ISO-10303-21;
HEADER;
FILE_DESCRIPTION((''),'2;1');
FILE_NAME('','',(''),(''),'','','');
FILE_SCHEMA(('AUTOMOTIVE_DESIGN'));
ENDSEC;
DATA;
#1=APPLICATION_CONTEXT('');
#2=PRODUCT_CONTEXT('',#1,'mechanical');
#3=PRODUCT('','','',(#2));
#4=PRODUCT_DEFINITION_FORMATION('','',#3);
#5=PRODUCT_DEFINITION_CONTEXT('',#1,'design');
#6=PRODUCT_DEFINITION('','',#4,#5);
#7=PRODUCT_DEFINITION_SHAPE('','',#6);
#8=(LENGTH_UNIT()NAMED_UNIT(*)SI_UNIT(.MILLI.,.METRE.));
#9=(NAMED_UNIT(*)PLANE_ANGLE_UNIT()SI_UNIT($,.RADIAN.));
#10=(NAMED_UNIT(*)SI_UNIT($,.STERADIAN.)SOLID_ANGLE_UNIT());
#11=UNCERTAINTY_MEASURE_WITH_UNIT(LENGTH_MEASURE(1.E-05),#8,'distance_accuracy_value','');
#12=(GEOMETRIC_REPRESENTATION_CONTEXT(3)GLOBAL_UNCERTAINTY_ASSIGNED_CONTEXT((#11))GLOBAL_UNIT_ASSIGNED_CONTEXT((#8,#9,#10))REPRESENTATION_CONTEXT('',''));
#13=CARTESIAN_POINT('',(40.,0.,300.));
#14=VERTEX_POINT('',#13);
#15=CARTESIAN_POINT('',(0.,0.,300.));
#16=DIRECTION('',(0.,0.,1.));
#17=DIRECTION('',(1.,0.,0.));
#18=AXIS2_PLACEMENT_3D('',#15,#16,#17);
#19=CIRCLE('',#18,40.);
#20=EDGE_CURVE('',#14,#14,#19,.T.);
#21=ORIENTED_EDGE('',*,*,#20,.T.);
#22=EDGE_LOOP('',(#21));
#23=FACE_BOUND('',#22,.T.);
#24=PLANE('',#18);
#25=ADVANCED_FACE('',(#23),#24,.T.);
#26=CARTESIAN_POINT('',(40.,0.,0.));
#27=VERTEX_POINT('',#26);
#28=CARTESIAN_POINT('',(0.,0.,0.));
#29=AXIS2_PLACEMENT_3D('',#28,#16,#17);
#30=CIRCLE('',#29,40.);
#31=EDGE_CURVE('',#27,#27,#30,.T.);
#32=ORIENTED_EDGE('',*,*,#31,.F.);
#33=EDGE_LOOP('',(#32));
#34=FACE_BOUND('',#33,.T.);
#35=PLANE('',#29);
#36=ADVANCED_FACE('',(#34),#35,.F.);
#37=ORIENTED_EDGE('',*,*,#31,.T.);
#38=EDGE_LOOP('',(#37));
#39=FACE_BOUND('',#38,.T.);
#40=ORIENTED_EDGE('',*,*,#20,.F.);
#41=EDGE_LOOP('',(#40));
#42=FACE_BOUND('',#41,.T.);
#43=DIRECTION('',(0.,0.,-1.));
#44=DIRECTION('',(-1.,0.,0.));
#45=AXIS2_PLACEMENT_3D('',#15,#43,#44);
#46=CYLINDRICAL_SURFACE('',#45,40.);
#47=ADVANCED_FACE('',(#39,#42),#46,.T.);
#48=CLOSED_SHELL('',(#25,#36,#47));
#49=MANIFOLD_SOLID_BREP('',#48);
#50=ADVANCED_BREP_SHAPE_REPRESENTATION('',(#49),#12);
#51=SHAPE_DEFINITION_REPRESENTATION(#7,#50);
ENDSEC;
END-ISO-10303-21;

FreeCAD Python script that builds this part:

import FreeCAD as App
import Part
import Sketcher
Q = App.Units.Quantity

doc = App.newDocument("Part")
body = doc.addObject("PartDesign::Body", "Body")

sketch1 = doc.addObject("Sketcher::SketchObject", "Sketch")
body.addObject(sketch1)
sketch1.AttachmentSupport = (doc.XY_Plane, [""])
sketch1.MapMode = "FlatFace"
sketch1.addGeometry(Part.Circle(App.Vector(0, 0, 0), App.Vector(0, 0, 1), 40), False)
sketch1.addConstraint(Sketcher.Constraint("Coincident", 0, 3, -1, 1))
sketch1.addConstraint(Sketcher.Constraint("Diameter", 0, Q("80 mm")))
pad1 = doc.addObject("PartDesign::Pad", "Pad")
body.addObject(pad1)
pad1.Profile = sketch1
pad1.Length = 300

doc.recompute()
